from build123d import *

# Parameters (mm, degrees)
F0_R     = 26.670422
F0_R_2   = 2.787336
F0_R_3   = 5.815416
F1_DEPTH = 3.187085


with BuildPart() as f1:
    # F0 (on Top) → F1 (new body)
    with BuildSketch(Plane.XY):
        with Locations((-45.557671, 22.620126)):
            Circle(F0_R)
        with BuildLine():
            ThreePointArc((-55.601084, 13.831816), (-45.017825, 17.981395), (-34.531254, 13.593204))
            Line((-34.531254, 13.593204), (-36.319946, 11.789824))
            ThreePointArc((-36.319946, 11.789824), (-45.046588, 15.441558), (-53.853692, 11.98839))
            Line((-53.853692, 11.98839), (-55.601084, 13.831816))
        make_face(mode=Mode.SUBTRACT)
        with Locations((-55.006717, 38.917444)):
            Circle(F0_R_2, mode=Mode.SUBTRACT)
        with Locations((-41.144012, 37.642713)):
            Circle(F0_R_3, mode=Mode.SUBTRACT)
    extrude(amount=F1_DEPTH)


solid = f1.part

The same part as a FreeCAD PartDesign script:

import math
import FreeCAD as App
import Part
import Sketcher

V = App.Vector
Q = App.Units.Quantity

doc = App.newDocument("Part")
body = doc.addObject("PartDesign::Body", "Body")

# Sketch on XY plane
sketch1 = body.newObject("Sketcher::SketchObject", "Sketch")
sketch1.AttachmentSupport = (doc.getObject("XY_Plane"), [""])
sketch1.MapMode = "FlatFace"
sketch1.addGeometry([
    Part.Circle(V(-45.557671, 22.620126, 0), V(0, 0, 1), 26.670422),  # 0
    Part.LineSegment(V(-53.853692, 11.98839, 0), V(-55.601084, 13.831816, 0)),  # 1
    Part.ArcOfCircle(Part.Circle(V(-45.189211, 2.847723, 0), V(0, 0, 1), 15.134643), math.radians(45.234297), math.radians(133.46803)),  # 2
    Part.LineSegment(V(-34.531254, 13.593204, 0), V(-36.319946, 11.789824, 0)),  # 3
    Part.ArcOfCircle(Part.Circle(V(-45.189211, 2.847722, 0), V(0, 0, 1), 12.594644), math.radians(45.234302), math.radians(133.468028)),  # 4
    Part.Circle(V(-55.006717, 38.917444, 0), V(0, 0, 1), 2.787336),  # 5
    Part.Circle(V(-41.144012, 37.642713, 0), V(0, 0, 1), 5.815416),  # 6
], False)
sketch1.addConstraint([
    Sketcher.Constraint("Coincident", 1, 2, 2, 2),
    Sketcher.Constraint("Coincident", 2, 1, 3, 1),
    Sketcher.Constraint("Coincident", 3, 2, 4, 1),
    Sketcher.Constraint("Coincident", 4, 2, 1, 1),
    Sketcher.Constraint("Coincident", 4, 3, 2, 3),
    Sketcher.Constraint("Distance", 1, Q("0.1 in")),
    Sketcher.Constraint("Diameter", 5, Q("5.574672 mm")),
    Sketcher.Constraint("Diameter", 0, Q("53.340844 mm")),
    Sketcher.Constraint("Diameter", 6, Q("11.630832 mm")),
    Sketcher.Constraint("Radius", 2, Q("15.134643 mm")),
    Sketcher.Constraint("DistanceX", 1, 2, 3, 2, Q("0.7590999 in")),
    Sketcher.Constraint("DistanceX", 2, 3, 6, 3, Q("4.045199 mm")),
    Sketcher.Constraint("DistanceY", 2, 3, 3, 2, Q("8.942101 mm")),
    Sketcher.Constraint("DistanceX", 0, 3, -1, 1, Q("45.557671 mm")),
    Sketcher.Constraint("DistanceX", 2, 3, -1, 1, Q("45.189211 mm")),
    Sketcher.Constraint("DistanceX", 4, 2, -1, 1, Q("53.853692 mm")),
    Sketcher.Constraint("DistanceY", -1, 1, 4, 2, Q("11.98839 mm")),
    Sketcher.Constraint("DistanceY", 0, 3, 5, 3, Q("16.297318 mm")),
    Sketcher.Constraint("DistanceY", 2, 3, 5, 3, Q("36.069721 mm")),
    Sketcher.Constraint("DistanceY", 6, 3, 5, 3, Q("1.274731 mm")),
    Sketcher.Constraint("DistanceY", 2, 3, 2, 1, Q("10.745481 mm")),
    Sketcher.Constraint("DistanceX", 5, 3, -1, 1, Q("55.006717 mm")),
])
pad1 = body.newObject("PartDesign::Pad", "Pad")
pad1.Profile = sketch1
pad1.Length = 3.187085

doc.recompute()
